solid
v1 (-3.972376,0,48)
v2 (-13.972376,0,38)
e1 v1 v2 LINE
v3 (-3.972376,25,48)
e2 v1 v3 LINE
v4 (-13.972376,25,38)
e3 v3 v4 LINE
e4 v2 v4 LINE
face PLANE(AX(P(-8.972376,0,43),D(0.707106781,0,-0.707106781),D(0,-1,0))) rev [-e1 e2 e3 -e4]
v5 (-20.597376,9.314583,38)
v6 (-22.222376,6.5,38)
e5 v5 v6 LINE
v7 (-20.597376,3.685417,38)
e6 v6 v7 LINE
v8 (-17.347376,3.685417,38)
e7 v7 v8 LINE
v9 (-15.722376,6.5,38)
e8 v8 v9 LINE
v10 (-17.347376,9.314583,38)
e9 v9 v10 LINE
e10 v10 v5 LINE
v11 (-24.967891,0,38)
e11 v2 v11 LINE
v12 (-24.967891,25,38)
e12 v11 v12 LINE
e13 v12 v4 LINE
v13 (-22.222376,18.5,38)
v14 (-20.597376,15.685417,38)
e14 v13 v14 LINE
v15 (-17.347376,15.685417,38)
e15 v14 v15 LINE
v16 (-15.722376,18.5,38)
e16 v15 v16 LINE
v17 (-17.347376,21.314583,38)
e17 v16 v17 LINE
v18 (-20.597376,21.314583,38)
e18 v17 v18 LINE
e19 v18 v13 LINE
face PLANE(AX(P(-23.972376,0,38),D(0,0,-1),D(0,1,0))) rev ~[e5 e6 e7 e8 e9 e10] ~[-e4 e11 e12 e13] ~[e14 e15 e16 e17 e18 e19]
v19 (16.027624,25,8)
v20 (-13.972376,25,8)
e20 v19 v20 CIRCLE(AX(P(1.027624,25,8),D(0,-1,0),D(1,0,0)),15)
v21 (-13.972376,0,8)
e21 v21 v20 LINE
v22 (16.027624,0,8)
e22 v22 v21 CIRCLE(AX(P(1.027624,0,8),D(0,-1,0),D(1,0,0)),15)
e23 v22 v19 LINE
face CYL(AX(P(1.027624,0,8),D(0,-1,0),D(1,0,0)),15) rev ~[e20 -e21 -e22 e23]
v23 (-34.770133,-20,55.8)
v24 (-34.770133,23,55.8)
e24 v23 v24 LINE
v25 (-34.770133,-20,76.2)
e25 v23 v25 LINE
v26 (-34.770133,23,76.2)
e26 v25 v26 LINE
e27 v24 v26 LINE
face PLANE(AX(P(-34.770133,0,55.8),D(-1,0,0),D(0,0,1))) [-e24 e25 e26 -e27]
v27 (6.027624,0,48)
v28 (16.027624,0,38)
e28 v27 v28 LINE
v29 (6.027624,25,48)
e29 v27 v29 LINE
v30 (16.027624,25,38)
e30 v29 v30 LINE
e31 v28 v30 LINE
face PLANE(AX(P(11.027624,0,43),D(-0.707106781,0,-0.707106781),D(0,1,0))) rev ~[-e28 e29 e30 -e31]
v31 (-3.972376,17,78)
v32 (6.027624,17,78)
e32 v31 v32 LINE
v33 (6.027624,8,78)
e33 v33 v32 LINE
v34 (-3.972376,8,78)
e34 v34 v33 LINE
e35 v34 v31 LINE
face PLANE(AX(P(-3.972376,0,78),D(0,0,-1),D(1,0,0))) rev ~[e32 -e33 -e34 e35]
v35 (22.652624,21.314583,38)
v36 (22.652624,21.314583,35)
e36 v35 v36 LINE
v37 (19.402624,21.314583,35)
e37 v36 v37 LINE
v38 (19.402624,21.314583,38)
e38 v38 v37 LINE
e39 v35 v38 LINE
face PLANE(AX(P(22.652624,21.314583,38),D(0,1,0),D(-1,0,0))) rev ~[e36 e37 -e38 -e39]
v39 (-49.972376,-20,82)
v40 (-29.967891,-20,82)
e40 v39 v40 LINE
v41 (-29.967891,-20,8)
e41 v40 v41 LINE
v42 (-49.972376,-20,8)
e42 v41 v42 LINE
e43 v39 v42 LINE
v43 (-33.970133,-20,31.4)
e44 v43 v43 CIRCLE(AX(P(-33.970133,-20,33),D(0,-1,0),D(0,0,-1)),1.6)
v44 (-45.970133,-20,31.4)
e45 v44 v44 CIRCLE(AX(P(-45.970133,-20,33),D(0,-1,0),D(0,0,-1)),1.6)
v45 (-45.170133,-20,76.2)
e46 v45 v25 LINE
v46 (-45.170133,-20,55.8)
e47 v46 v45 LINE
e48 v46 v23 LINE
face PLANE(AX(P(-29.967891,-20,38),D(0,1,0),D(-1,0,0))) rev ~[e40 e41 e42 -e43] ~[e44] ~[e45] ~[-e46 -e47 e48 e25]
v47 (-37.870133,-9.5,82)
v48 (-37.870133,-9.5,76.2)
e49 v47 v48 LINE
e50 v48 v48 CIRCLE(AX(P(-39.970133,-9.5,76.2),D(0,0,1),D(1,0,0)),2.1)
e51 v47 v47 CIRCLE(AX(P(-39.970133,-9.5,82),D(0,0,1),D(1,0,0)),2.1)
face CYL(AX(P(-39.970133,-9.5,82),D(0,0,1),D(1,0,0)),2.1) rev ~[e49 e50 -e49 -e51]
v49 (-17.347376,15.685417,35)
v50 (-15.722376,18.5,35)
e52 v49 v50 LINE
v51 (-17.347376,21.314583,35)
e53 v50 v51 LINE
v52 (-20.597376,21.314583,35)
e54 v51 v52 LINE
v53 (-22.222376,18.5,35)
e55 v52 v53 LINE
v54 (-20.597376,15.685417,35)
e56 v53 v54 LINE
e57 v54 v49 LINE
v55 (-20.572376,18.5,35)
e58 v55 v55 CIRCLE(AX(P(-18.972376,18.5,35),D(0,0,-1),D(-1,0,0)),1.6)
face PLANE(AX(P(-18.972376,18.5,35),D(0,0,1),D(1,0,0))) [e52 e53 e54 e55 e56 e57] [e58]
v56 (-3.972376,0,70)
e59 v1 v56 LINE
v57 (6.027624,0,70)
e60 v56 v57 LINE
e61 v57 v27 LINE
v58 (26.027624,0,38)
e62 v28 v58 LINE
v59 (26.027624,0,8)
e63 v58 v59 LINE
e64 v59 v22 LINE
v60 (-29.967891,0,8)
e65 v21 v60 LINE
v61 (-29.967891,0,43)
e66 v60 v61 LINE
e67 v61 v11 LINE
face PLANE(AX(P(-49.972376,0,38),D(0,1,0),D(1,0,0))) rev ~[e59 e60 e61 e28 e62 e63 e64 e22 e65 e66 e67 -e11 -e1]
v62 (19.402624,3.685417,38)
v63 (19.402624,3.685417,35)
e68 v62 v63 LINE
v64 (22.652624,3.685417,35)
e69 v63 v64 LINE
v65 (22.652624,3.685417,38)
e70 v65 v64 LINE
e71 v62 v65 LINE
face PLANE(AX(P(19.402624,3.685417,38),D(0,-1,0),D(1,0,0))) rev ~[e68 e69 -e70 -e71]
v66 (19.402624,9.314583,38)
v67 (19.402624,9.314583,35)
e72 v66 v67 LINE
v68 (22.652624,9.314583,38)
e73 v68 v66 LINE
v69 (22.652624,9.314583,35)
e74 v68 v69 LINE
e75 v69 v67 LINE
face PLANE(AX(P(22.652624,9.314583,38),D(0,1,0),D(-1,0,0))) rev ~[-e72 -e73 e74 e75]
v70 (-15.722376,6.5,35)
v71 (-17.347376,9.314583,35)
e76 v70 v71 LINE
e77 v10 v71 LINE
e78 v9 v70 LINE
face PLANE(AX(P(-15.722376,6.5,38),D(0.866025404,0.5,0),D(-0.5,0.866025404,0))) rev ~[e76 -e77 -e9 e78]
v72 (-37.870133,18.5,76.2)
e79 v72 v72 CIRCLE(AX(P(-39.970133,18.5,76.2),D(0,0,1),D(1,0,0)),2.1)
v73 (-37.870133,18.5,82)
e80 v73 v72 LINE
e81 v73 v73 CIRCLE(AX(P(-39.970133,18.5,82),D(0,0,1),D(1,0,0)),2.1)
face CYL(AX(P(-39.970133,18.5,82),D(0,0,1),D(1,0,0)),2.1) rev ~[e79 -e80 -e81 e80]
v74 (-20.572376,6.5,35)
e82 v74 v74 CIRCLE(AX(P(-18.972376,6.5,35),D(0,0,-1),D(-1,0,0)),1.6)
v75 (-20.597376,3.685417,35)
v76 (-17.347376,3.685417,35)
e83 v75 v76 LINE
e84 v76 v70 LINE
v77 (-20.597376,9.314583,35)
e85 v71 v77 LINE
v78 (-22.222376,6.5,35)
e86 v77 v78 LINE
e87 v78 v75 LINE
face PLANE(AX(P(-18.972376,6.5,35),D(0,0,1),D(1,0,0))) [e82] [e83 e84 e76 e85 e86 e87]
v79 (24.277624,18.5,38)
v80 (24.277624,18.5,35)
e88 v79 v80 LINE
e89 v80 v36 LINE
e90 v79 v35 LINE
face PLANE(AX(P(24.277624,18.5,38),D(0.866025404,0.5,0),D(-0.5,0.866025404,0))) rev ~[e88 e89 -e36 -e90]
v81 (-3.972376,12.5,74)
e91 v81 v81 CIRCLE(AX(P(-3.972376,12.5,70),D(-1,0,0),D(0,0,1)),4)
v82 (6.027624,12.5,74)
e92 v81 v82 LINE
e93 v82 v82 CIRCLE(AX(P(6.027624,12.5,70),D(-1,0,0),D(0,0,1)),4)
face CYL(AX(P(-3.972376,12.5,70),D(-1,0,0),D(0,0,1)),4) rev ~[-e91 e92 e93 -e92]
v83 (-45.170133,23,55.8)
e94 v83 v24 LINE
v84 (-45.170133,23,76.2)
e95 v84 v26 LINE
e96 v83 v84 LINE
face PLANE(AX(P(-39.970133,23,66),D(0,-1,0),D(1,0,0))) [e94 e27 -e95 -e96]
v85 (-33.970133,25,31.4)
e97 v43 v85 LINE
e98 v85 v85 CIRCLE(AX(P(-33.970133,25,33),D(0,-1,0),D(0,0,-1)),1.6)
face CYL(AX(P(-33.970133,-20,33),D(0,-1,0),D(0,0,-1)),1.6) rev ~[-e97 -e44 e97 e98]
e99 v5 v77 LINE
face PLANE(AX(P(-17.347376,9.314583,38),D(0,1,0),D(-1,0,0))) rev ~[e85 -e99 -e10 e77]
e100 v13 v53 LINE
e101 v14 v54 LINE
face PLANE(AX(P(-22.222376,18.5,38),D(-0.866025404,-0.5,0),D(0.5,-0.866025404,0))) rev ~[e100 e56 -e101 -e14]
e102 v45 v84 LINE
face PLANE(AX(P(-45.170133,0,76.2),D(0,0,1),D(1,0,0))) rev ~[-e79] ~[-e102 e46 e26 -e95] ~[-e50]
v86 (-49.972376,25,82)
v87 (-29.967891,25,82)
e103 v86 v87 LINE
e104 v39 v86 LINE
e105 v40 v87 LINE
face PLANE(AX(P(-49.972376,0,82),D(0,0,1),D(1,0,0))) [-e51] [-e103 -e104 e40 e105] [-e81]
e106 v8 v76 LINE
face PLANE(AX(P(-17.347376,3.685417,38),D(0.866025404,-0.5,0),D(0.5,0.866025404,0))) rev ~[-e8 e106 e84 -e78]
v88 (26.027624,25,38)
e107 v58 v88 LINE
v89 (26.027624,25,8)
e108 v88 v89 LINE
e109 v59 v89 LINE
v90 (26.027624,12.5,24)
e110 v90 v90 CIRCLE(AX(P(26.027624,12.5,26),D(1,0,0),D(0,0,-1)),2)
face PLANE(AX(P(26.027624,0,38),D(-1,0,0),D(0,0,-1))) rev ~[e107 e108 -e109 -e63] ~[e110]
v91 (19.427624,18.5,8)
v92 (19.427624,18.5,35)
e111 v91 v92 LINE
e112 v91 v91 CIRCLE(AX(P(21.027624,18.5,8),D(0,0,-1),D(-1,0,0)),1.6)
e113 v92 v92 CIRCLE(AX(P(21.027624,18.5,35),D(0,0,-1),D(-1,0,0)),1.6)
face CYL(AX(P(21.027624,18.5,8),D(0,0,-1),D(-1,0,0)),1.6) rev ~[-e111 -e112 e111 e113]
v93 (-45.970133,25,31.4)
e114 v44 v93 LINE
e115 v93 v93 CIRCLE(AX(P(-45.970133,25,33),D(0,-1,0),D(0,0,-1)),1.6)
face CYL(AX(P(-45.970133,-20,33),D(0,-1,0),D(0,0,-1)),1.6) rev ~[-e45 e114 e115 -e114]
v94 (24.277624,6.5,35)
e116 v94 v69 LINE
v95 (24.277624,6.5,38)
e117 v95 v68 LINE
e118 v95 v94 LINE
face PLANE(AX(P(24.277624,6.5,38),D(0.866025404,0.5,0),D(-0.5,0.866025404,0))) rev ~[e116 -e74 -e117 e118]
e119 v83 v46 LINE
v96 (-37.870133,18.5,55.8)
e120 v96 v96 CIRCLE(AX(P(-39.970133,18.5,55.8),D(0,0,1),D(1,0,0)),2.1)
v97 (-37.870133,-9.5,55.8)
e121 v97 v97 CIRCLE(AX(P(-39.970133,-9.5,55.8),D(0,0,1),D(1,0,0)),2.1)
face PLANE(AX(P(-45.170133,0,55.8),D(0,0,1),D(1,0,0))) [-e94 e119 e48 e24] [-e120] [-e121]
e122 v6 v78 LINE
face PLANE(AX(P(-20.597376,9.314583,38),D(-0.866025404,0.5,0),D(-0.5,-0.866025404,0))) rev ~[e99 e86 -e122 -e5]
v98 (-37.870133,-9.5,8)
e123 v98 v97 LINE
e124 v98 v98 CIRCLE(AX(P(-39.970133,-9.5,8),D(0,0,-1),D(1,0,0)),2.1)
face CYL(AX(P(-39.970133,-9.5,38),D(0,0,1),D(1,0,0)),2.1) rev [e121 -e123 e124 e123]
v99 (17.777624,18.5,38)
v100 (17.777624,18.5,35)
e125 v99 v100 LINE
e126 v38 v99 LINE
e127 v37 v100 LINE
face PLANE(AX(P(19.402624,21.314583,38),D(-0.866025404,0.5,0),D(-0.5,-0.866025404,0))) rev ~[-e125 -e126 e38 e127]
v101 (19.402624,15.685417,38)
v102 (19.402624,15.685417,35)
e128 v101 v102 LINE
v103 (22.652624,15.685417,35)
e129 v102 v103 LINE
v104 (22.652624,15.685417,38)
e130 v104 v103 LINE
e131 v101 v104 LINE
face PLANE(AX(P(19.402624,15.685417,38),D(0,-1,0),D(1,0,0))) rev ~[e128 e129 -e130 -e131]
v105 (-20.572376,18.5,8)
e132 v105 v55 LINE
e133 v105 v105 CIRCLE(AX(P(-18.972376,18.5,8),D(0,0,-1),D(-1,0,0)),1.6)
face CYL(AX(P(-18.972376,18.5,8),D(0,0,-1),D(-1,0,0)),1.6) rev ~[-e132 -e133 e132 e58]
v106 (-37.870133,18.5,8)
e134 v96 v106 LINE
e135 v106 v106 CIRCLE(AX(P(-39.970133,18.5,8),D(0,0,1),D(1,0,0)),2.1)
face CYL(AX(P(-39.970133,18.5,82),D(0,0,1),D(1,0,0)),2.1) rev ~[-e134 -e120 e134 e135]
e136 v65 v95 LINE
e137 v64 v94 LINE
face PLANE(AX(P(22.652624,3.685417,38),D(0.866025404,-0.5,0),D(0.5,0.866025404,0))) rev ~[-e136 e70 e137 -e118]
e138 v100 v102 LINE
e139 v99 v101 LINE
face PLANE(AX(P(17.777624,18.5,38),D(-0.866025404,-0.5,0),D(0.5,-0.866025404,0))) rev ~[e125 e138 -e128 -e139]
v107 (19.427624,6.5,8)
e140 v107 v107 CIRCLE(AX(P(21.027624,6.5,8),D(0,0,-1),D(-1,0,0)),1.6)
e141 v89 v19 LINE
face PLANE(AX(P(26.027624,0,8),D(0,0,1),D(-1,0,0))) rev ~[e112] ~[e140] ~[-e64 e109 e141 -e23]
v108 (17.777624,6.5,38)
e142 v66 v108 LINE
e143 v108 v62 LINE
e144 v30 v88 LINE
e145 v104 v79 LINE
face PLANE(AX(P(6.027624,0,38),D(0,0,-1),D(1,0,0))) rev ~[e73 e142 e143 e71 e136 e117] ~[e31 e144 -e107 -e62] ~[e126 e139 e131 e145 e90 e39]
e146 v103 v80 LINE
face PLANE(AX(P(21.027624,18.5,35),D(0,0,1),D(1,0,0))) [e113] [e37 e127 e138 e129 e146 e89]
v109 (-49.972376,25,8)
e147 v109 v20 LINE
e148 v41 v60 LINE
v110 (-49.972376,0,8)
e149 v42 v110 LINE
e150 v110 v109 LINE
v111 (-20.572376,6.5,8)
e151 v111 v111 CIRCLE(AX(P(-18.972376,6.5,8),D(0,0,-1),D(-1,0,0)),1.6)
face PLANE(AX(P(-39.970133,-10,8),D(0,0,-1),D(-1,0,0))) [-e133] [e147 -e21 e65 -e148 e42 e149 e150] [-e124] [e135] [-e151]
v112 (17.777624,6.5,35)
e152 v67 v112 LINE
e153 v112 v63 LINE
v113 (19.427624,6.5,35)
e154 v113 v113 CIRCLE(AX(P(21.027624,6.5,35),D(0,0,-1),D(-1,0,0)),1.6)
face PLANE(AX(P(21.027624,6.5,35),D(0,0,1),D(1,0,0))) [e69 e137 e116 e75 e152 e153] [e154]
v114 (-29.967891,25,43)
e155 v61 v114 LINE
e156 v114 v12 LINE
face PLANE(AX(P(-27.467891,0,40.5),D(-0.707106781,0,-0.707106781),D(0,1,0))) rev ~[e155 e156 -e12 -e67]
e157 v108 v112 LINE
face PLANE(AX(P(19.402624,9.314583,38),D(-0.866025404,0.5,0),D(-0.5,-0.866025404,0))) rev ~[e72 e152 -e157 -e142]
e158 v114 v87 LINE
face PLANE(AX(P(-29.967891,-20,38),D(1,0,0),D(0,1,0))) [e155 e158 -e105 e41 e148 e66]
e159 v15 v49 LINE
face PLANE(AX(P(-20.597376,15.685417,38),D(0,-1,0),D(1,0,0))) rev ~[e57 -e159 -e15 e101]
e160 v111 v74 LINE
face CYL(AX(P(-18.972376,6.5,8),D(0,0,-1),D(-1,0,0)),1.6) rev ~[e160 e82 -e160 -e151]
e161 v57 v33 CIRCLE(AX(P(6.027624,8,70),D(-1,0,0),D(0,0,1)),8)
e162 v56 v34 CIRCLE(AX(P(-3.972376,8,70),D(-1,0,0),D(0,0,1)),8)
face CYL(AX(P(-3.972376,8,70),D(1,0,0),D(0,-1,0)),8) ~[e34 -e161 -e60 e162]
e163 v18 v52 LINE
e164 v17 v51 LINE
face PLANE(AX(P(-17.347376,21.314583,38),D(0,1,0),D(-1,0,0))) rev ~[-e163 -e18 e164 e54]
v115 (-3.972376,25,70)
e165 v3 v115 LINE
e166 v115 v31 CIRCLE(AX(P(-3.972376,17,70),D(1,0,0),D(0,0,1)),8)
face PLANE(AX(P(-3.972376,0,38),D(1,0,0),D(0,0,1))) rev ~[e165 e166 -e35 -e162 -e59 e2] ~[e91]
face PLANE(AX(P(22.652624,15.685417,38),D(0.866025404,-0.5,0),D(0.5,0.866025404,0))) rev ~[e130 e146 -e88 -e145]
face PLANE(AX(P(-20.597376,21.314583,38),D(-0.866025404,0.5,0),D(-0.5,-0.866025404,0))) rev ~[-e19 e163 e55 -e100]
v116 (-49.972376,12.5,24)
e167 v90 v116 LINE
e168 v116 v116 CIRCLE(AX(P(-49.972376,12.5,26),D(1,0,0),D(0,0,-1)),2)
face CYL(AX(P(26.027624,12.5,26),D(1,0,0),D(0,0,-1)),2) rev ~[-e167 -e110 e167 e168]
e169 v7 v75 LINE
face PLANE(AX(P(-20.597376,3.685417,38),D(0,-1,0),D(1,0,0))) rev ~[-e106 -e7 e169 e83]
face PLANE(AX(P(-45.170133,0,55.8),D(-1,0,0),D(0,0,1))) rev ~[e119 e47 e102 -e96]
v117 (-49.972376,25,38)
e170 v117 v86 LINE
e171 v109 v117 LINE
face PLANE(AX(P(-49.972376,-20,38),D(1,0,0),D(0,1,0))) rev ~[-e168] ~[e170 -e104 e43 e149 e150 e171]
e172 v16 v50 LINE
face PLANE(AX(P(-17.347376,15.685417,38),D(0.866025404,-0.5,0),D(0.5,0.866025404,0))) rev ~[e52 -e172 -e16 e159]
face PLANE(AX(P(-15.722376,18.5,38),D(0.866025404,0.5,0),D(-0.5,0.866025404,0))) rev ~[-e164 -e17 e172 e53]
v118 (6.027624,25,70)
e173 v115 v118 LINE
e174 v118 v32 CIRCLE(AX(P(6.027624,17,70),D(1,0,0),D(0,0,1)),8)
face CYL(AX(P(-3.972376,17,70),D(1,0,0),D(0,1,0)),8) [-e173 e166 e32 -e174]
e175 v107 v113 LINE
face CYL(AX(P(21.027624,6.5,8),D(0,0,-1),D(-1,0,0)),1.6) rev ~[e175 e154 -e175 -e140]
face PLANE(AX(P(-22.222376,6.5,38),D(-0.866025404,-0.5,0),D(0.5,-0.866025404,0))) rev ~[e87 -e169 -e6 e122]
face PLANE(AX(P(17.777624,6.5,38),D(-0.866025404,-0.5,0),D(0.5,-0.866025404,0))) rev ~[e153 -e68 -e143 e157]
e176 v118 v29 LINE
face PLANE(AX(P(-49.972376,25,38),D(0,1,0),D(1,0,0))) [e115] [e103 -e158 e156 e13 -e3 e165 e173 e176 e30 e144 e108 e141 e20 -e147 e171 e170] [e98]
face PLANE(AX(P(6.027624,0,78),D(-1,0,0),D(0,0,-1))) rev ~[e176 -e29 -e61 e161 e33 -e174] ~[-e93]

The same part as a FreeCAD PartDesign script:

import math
import FreeCAD as App
import Part
import Sketcher

V = App.Vector
Q = App.Units.Quantity


def edges_at(feature, points):
    """Names of the edges that pass closest to the given points."""
    edges = feature.Shape.Edges
    near = lambda p: min(range(len(edges)), key=lambda i: edges[i].distToShape(Part.Vertex(*p))[0])
    return sorted({f"Edge{near(p) + 1}" for p in points})

doc = App.newDocument("Part")
body = doc.addObject("PartDesign::Body", "Body")

sketch1 = body.newObject("Sketcher::SketchObject", "Sketch")
sketch1.AttachmentSupport = (doc.getObject("XZ_Plane"), [""])
sketch1.MapMode = "FlatFace"
sketch1.addGeometry([
    Part.LineSegment(V(-13.972376, 8, 0), V(-23.972376, 8, 0)),
    Part.LineSegment(V(-23.972376, 8, 0), V(-23.972376, 38, 0)),
    Part.LineSegment(V(-23.972376, 38, 0), V(-3.972376, 38, 0)),
    Part.LineSegment(V(-3.972376, 38, 0), V(-3.972376, 78, 0)),
    Part.LineSegment(V(-3.972376, 78, 0), V(6.027624, 78, 0)),
    Part.LineSegment(V(6.027624, 78, 0), V(6.027624, 38, 0)),
    Part.LineSegment(V(6.027624, 38, 0), V(26.027624, 38, 0)),
    Part.LineSegment(V(26.027624, 38, 0), V(26.027624, 8, 0)),
    Part.LineSegment(V(26.027624, 8, 0), V(16.027624, 8, 0)),
    Part.ArcOfCircle(Part.Circle(V(1.027624, 8, 0), V(0, 0, 1), 15), math.radians(0), math.radians(180)),
], False)
sketch1.addConstraint([
    Sketcher.Constraint("Coincident", 0, 2, 1, 1),
    Sketcher.Constraint("Coincident", 1, 2, 2, 1),
    Sketcher.Constraint("Coincident", 2, 2, 3, 1),
    Sketcher.Constraint("Coincident", 3, 2, 4, 1),
    Sketcher.Constraint("Coincident", 4, 2, 5, 1),
    Sketcher.Constraint("Coincident", 5, 2, 6, 1),
    Sketcher.Constraint("Coincident", 6, 2, 7, 1),
    Sketcher.Constraint("Coincident", 7, 2, 8, 1),
    Sketcher.Constraint("Coincident", 8, 2, 9, 1),
    Sketcher.Constraint("Coincident", 9, 2, 0, 1),
    Sketcher.Constraint("Horizontal", 0),
    Sketcher.Constraint("Vertical", 1),
    Sketcher.Constraint("Horizontal", 2),
    Sketcher.Constraint("Vertical", 3),
    Sketcher.Constraint("Horizontal", 4),
    Sketcher.Constraint("Vertical", 5),
    Sketcher.Constraint("Horizontal", 6),
    Sketcher.Constraint("Vertical", 7),
    Sketcher.Constraint("Horizontal", 8),
    Sketcher.Constraint("Horizontal", 9, 3, 0, 2),
    Sketcher.Constraint("Horizontal", 2, 2, 5, 2),
    Sketcher.Constraint("Horizontal", 0, 2, 7, 2),
    Sketcher.Constraint("Equal", 0, 4),
    Sketcher.Constraint("Equal", 2, 6),
    Sketcher.Constraint("Equal", 4, 8),
    Sketcher.Constraint("Radius", 9, 15.0),
    Sketcher.Constraint("DistanceX", 0, 2, 0, 1, 10.0),
    Sketcher.Constraint("DistanceY", 1, 1, 1, 2, 30.0),
    Sketcher.Constraint("DistanceY", 3, 1, 3, 2, 40.0),
    Sketcher.Constraint("DistanceY", -1, 1, 9, 3, 8.0),
    Sketcher.Constraint("DistanceX", -1, 1, 9, 3, 1.027624),
])
pad1 = body.newObject("PartDesign::Pad", "Pad")
pad1.Profile = sketch1
pad1.Length = 25
pad1.Reversed = True

sketch2 = body.newObject("Sketcher::SketchObject", "Sketch001")
sketch2.AttachmentSupport = (doc.getObject("YZ_Plane"), [""])
sketch2.MapMode = "FlatFace"
sketch2.AttachmentOffset = App.Placement(V(0, 0, -3.972376), App.Rotation())
sketch2.addGeometry(Part.Circle(V(12.5, 70, 0), V(0, 0, 1), 4), False)
sketch2.addConstraint([
    Sketcher.Constraint("Diameter", 0, 8.0),
    Sketcher.Constraint("DistanceY", -1, 1, 0, 3, 70.0),
    Sketcher.Constraint("DistanceX", -1, 1, 0, 3, 12.5),
])
pocket1 = body.newObject("PartDesign::Pocket", "Pocket")
pocket1.Profile = sketch2
pocket1.Type = "ThroughAll"
pocket1.Reversed = True

sketch3 = body.newObject("Sketcher::SketchObject", "Sketch002")
sketch3.AttachmentSupport = (doc.getObject("XY_Plane"), [""])
sketch3.MapMode = "FlatFace"
sketch3.AttachmentOffset = App.Placement(V(0, 0, 8), App.Rotation())
sketch3.addGeometry([
    Part.Circle(V(21.027624, 6.5, 0), V(0, 0, 1), 1.6),
    Part.Circle(V(21.027624, 18.5, 0), V(0, 0, 1), 1.6),
    Part.Circle(V(-18.972376, 6.5, 0), V(0, 0, 1), 1.6),
    Part.Circle(V(-18.972376, 18.5, 0), V(0, 0, 1), 1.6),
], False)
sketch3.addConstraint([
    Sketcher.Constraint("Equal", 0, 1),
    Sketcher.Constraint("Equal", 1, 2),
    Sketcher.Constraint("Equal", 2, 3),
    Sketcher.Constraint("Horizontal", 0, 3, 2, 3),
    Sketcher.Constraint("Horizontal", 1, 3, 3, 3),
    Sketcher.Constraint("Vertical", 0, 3, 1, 3),
    Sketcher.Constraint("Vertical", 2, 3, 3, 3),
    Sketcher.Constraint("Diameter", 0, 3.2),
    Sketcher.Constraint("DistanceY", 0, 3, 1, 3, 12.0),
    Sketcher.Constraint("DistanceX", 2, 3, 0, 3, 40.0),
    Sketcher.Constraint("DistanceY", -1, 1, 0, 3, 6.5),
    Sketcher.Constraint("DistanceX", -1, 1, 0, 3, 21.027624),
])
pocket2 = body.newObject("PartDesign::Pocket", "Pocket001")
pocket2.Profile = sketch3
pocket2.Type = "ThroughAll"
pocket2.Reversed = True

sketch4 = body.newObject("Sketcher::SketchObject", "Sketch003")
sketch4.AttachmentSupport = (doc.getObject("XY_Plane"), [""])
sketch4.MapMode = "FlatFace"
sketch4.AttachmentOffset = App.Placement(V(0, 0, 38), App.Rotation())
sketch4.addGeometry([
    Part.LineSegment(V(24.277624, 18.5, 0), V(22.652624, 21.314583, 0)),
    Part.LineSegment(V(22.652624, 21.314583, 0), V(19.402624, 21.314583, 0)),
    Part.LineSegment(V(19.402624, 21.314583, 0), V(17.777624, 18.5, 0)),
    Part.LineSegment(V(17.777624, 18.5, 0), V(19.402624, 15.685417, 0)),
    Part.LineSegment(V(19.402624, 15.685417, 0), V(22.652624, 15.685417, 0)),
    Part.LineSegment(V(22.652624, 15.685417, 0), V(24.277624, 18.5, 0)),
    Part.LineSegment(V(24.277624, 6.5, 0), V(22.652624, 9.314583, 0)),
    Part.LineSegment(V(22.652624, 9.314583, 0), V(19.402624, 9.314583, 0)),
    Part.LineSegment(V(19.402624, 9.314583, 0), V(17.777624, 6.5, 0)),
    Part.LineSegment(V(17.777624, 6.5, 0), V(19.402624, 3.685417, 0)),
    Part.LineSegment(V(19.402624, 3.685417, 0), V(22.652624, 3.685417, 0)),
    Part.LineSegment(V(22.652624, 3.685417, 0), V(24.277624, 6.5, 0)),
    Part.LineSegment(V(-15.722376, 18.5, 0), V(-17.347376, 21.314583, 0)),
    Part.LineSegment(V(-17.347376, 21.314583, 0), V(-20.597376, 21.314583, 0)),
    Part.LineSegment(V(-20.597376, 21.314583, 0), V(-22.222376, 18.5, 0)),
    Part.LineSegment(V(-22.222376, 18.5, 0), V(-20.597376, 15.685417, 0)),
    Part.LineSegment(V(-20.597376, 15.685417, 0), V(-17.347376, 15.685417, 0)),
    Part.LineSegment(V(-17.347376, 15.685417, 0), V(-15.722376, 18.5, 0)),
    Part.LineSegment(V(-15.722376, 6.5, 0), V(-17.347376, 9.314583, 0)),
    Part.LineSegment(V(-17.347376, 9.314583, 0), V(-20.597376, 9.314583, 0)),
    Part.LineSegment(V(-20.597376, 9.314583, 0), V(-22.222376, 6.5, 0)),
    Part.LineSegment(V(-22.222376, 6.5, 0), V(-20.597376, 3.685417, 0)),
    Part.LineSegment(V(-20.597376, 3.685417, 0), V(-17.347376, 3.685417, 0)),
    Part.LineSegment(V(-17.347376, 3.685417, 0), V(-15.722376, 6.5, 0)),
], False)
sketch4.addConstraint([
    Sketcher.Constraint("Coincident", 0, 2, 1, 1),
    Sketcher.Constraint("Coincident", 1, 2, 2, 1),
    Sketcher.Constraint("Coincident", 2, 2, 3, 1),
    Sketcher.Constraint("Coincident", 3, 2, 4, 1),
    Sketcher.Constraint("Coincident", 4, 2, 5, 1),
    Sketcher.Constraint("Coincident", 5, 2, 0, 1),
    Sketcher.Constraint("Coincident", 6, 2, 7, 1),
    Sketcher.Constraint("Coincident", 7, 2, 8, 1),
    Sketcher.Constraint("Coincident", 8, 2, 9, 1),
    Sketcher.Constraint("Coincident", 9, 2, 10, 1),
    Sketcher.Constraint("Coincident", 10, 2, 11, 1),
    Sketcher.Constraint("Coincident", 11, 2, 6, 1),
    Sketcher.Constraint("Coincident", 12, 2, 13, 1),
    Sketcher.Constraint("Coincident", 13, 2, 14, 1),
    Sketcher.Constraint("Coincident", 14, 2, 15, 1),
    Sketcher.Constraint("Coincident", 15, 2, 16, 1),
    Sketcher.Constraint("Coincident", 16, 2, 17, 1),
    Sketcher.Constraint("Coincident", 17, 2, 12, 1),
    Sketcher.Constraint("Coincident", 18, 2, 19, 1),
    Sketcher.Constraint("Coincident", 19, 2, 20, 1),
    Sketcher.Constraint("Coincident", 20, 2, 21, 1),
    Sketcher.Constraint("Coincident", 21, 2, 22, 1),
    Sketcher.Constraint("Coincident", 22, 2, 23, 1),
    Sketcher.Constraint("Coincident", 23, 2, 18, 1),
    Sketcher.Constraint("Horizontal", 1),
    Sketcher.Constraint("Horizontal", 4),
    Sketcher.Constraint("Horizontal", 7),
    Sketcher.Constraint("Horizontal", 10),
    Sketcher.Constraint("Horizontal", 13),
    Sketcher.Constraint("Horizontal", 16),
    Sketcher.Constraint("Horizontal", 19),
    Sketcher.Constraint("Horizontal", 22),
    Sketcher.Constraint("Parallel", 0, 3),
    Sketcher.Constraint("Parallel", 2, 5),
    Sketcher.Constraint("Parallel", 3, 6),
    Sketcher.Constraint("Parallel", 5, 8),
    Sketcher.Constraint("Parallel", 6, 9),
    Sketcher.Constraint("Parallel", 8, 11),
    Sketcher.Constraint("Parallel", 9, 12),
    Sketcher.Constraint("Parallel", 11, 14),
    Sketcher.Constraint("Parallel", 12, 15),
    Sketcher.Constraint("Parallel", 14, 17),
    Sketcher.Constraint("Parallel", 15, 18),
    Sketcher.Constraint("Parallel", 17, 20),
    Sketcher.Constraint("Parallel", 18, 21),
    Sketcher.Constraint("Parallel", 20, 23),
    Sketcher.Constraint("Horizontal", 2, 2, 5, 2),
    Sketcher.Constraint("Horizontal", 8, 2, 11, 2),
    Sketcher.Constraint("Horizontal", 1, 2, 12, 2),
    Sketcher.Constraint("Horizontal", 5, 2, 14, 2),
    Sketcher.Constraint("Horizontal", 4, 2, 15, 2),
    Sketcher.Constraint("Horizontal", 14, 2, 17, 2),
    Sketcher.Constraint("Horizontal", 7, 2, 18, 2),
    Sketcher.Constraint("Horizontal", 11, 2, 20, 2),
    Sketcher.Constraint("Horizontal", 10, 2, 21, 2),
    Sketcher.Constraint("Horizontal", 20, 2, 23, 2),
    Sketcher.Constraint("Vertical", 1, 2, 3, 2),
    Sketcher.Constraint("Vertical", 0, 2, 4, 2),
    Sketcher.Constraint("Vertical", 4, 2, 6, 2),
    Sketcher.Constraint("Vertical", 3, 2, 7, 2),
    Sketcher.Constraint("Vertical", 2, 2, 8, 2),
    Sketcher.Constraint("Vertical", 7, 2, 9, 2),
    Sketcher.Constraint("Vertical", 16, 2, 18, 2),
    Sketcher.Constraint("Vertical", 15, 2, 19, 2),
    Sketcher.Constraint("Equal", 10, 13),
    Sketcher.Constraint("Angle", 0, Q("120 deg")),
    Sketcher.Constraint("DistanceY", 6, 2, 0, 2, 12.0),
    Sketcher.Constraint("DistanceX", 13, 2, 1, 2, 40.0),
    Sketcher.Constraint("DistanceX", 1, 2, 1, 1, 3.25),
    Sketcher.Constraint("DistanceY", -1, 1, 2, 2, 18.5),
    Sketcher.Constraint("DistanceX", 2, 2, 5, 2, 6.5),
    Sketcher.Constraint("DistanceX", -1, 1, 0, 2, 22.652624),
])
pocket3 = body.newObject("PartDesign::Pocket", "Pocket002")
pocket3.Profile = sketch4
pocket3.Length = 3
doc.recompute()

fillet = body.newObject("PartDesign::Fillet", "Fillet")
fillet.Base = (pocket3, edges_at(pocket3, [(1.028, 0, 78), (1.028, 25, 78)]))
fillet.Radius = 8
doc.recompute()

chamfer = body.newObject("PartDesign::Chamfer", "Chamfer")
chamfer.Base = (fillet, edges_at(fillet, [(6.028, 12.5, 38), (-3.972, 12.5, 38)]))
chamfer.Size = 10

sketch5 = body.newObject("Sketcher::SketchObject", "Sketch004")
sketch5.AttachmentSupport = (doc.getObject("YZ_Plane"), [""])
sketch5.MapMode = "FlatFace"
sketch5.AttachmentOffset = App.Placement(V(0, 0, -23.972376), App.Rotation())
sketch5.addGeometry([
    Part.LineSegment(V(25, 8, 0), V(0, 8, 0)),
    Part.LineSegment(V(0, 8, 0), V(0, 38, 0)),
    Part.LineSegment(V(0, 38, 0), V(25, 38, 0)),
    Part.LineSegment(V(25, 38, 0), V(25, 8, 0)),
], False)
sketch5.addConstraint([
    Sketcher.Constraint("Coincident", 0, 2, 1, 1),
    Sketcher.Constraint("Coincident", 1, 2, 2, 1),
    Sketcher.Constraint("Coincident", 2, 2, 3, 1),
    Sketcher.Constraint("Coincident", 3, 2, 0, 1),
    Sketcher.Constraint("Horizontal", 0),
    Sketcher.Constraint("Vertical", 1),
    Sketcher.Constraint("Horizontal", 2),
    Sketcher.Constraint("Vertical", 3),
    Sketcher.Constraint("PointOnObject", 0, 2, -2),
    Sketcher.Constraint("DistanceX", 0, 2, 0, 1, 25.0),
    Sketcher.Constraint("DistanceY", 1, 1, 1, 2, 30.0),
    Sketcher.Constraint("DistanceY", -1, 1, 0, 2, 8.0),
])
pad2 = body.newObject("PartDesign::Pad", "Pad001")
pad2.Profile = sketch5
pad2.Length = 26
pad2.Reversed = True

sketch6 = body.newObject("Sketcher::SketchObject", "Sketch005")
sketch6.AttachmentSupport = (doc.getObject("XY_Plane"), [""])
sketch6.MapMode = "FlatFace"
sketch6.AttachmentOffset = App.Placement(V(0, 0, 38), App.Rotation())
sketch6.addGeometry([
    Part.LineSegment(V(-49.972376, 25, 0), V(-49.972376, 0, 0)),
    Part.LineSegment(V(-49.972376, 0, 0), V(-29.967891, 0, 0)),
    Part.LineSegment(V(-29.967891, 0, 0), V(-29.967891, 25, 0)),
    Part.LineSegment(V(-29.967891, 25, 0), V(-49.972376, 25, 0)),
], False)
sketch6.addConstraint([
    Sketcher.Constraint("Coincident", 0, 2, 1, 1),
    Sketcher.Constraint("Coincident", 1, 2, 2, 1),
    Sketcher.Constraint("Coincident", 2, 2, 3, 1),
    Sketcher.Constraint("Coincident", 3, 2, 0, 1),
    Sketcher.Constraint("Vertical", 0),
    Sketcher.Constraint("Horizontal", 1),
    Sketcher.Constraint("Vertical", 2),
    Sketcher.Constraint("Horizontal", 3),
    Sketcher.Constraint("PointOnObject", 0, 2, -1),
    Sketcher.Constraint("DistanceY", 0, 2, 0, 1, 25.0),
    Sketcher.Constraint("DistanceX", 1, 1, 1, 2, 20.004484),
    Sketcher.Constraint("DistanceX", 1, 2, -1, 1, 29.967891),
])
pad3 = body.newObject("PartDesign::Pad", "Pad002")
pad3.Profile = sketch6
pad3.Length = 44

sketch7 = body.newObject("Sketcher::SketchObject", "Sketch006")
sketch7.AttachmentSupport = (doc.getObject("XZ_Plane"), [""])
sketch7.MapMode = "FlatFace"
sketch7.addGeometry([
    Part.LineSegment(V(-45.170133, 76.2, 0), V(-45.170133, 55.8, 0)),
    Part.LineSegment(V(-45.170133, 55.8, 0), V(-34.770133, 55.8, 0)),
    Part.LineSegment(V(-34.770133, 55.8, 0), V(-34.770133, 76.2, 0)),
    Part.LineSegment(V(-34.770133, 76.2, 0), V(-45.170133, 76.2, 0)),
], False)
sketch7.addConstraint([
    Sketcher.Constraint("Coincident", 0, 2, 1, 1),
    Sketcher.Constraint("Coincident", 1, 2, 2, 1),
    Sketcher.Constraint("Coincident", 2, 2, 3, 1),
    Sketcher.Constraint("Coincident", 3, 2, 0, 1),
    Sketcher.Constraint("Vertical", 0),
    Sketcher.Constraint("Horizontal", 1),
    Sketcher.Constraint("Vertical", 2),
    Sketcher.Constraint("Horizontal", 3),
    Sketcher.Constraint("DistanceX", 1, 1, 1, 2, 10.4),
    Sketcher.Constraint("DistanceY", 0, 2, 0, 1, 20.4),
    Sketcher.Constraint("DistanceY", -1, 1, 0, 2, 55.8),
    Sketcher.Constraint("DistanceX", 0, 2, -1, 1, 45.170133),
])
pocket4 = body.newObject("PartDesign::Pocket", "Pocket003")
pocket4.Profile = sketch7
pocket4.Length = 23

sketch8 = body.newObject("Sketcher::SketchObject", "Sketch007")
sketch8.AttachmentSupport = (doc.getObject("XZ_Plane"), [""])
sketch8.MapMode = "FlatFace"
sketch8.addGeometry([
    Part.LineSegment(V(-49.972376, 82, 0), V(-49.972376, 38, 0)),
    Part.LineSegment(V(-49.972376, 38, 0), V(-29.967891, 38, 0)),
    Part.LineSegment(V(-29.967891, 38, 0), V(-29.967891, 82, 0)),
    Part.LineSegment(V(-29.967891, 82, 0), V(-49.972376, 82, 0)),
    Part.LineSegment(V(-34.770133, 55.8, 0), V(-45.170133, 55.8, 0)),
    Part.LineSegment(V(-45.170133, 55.8, 0), V(-45.170133, 76.2, 0)),
    Part.LineSegment(V(-45.170133, 76.2, 0), V(-34.770133, 76.2, 0)),
    Part.LineSegment(V(-34.770133, 76.2, 0), V(-34.770133, 55.8, 0)),
], False)
sketch8.addConstraint([
    Sketcher.Constraint("Coincident", 0, 2, 1, 1),
    Sketcher.Constraint("Coincident", 1, 2, 2, 1),
    Sketcher.Constraint("Coincident", 2, 2, 3, 1),
    Sketcher.Constraint("Coincident", 3, 2, 0, 1),
    Sketcher.Constraint("Coincident", 4, 2, 5, 1),
    Sketcher.Constraint("Coincident", 5, 2, 6, 1),
    Sketcher.Constraint("Coincident", 6, 2, 7, 1),
    Sketcher.Constraint("Coincident", 7, 2, 4, 1),
    Sketcher.Constraint("Vertical", 0),
    Sketcher.Constraint("Horizontal", 1),
    Sketcher.Constraint("Vertical", 2),
    Sketcher.Constraint("Horizontal", 3),
    Sketcher.Constraint("Horizontal", 4),
    Sketcher.Constraint("Vertical", 5),
    Sketcher.Constraint("Horizontal", 6),
    Sketcher.Constraint("Vertical", 7),
    Sketcher.Constraint("DistanceY", 0, 2, 0, 1, 44.0),
    Sketcher.Constraint("DistanceX", 4, 2, 4, 1, 10.4),
    Sketcher.Constraint("DistanceY", 5, 1, 5, 2, 20.4),
    Sketcher.Constraint("DistanceY", -1, 1, 0, 2, 38.0),
    Sketcher.Constraint("DistanceY", -1, 1, 4, 2, 55.8),
    Sketcher.Constraint("DistanceX", 1, 1, 1, 2, 20.004484),
    Sketcher.Constraint("DistanceX", 1, 2, -1, 1, 29.967891),
    Sketcher.Constraint("DistanceX", 4, 2, -1, 1, 45.170133),
])
pad4 = body.newObject("PartDesign::Pad", "Pad003")
pad4.Profile = sketch8
pad4.Length = 20

sketch9 = body.newObject("Sketcher::SketchObject", "Sketch008")
sketch9.AttachmentSupport = (doc.getObject("XY_Plane"), [""])
sketch9.MapMode = "FlatFace"
sketch9.AttachmentOffset = App.Placement(V(0, 0, 82), App.Rotation())
sketch9.addGeometry([
    Part.Circle(V(-39.970133, -9.5, 0), V(0, 0, 1), 2.1),
    Part.Circle(V(-39.970133, 18.5, 0), V(0, 0, 1), 2.1),
], False)
sketch9.addConstraint([
    Sketcher.Constraint("Equal", 0, 1),
    Sketcher.Constraint("Vertical", 0, 3, 1, 3),
    Sketcher.Constraint("Diameter", 0, 4.2),
    Sketcher.Constraint("DistanceY", 0, 3, 1, 3, 28.0),
    Sketcher.Constraint("DistanceY", 0, 3, -1, 1, 9.5),
    Sketcher.Constraint("DistanceX", 0, 3, -1, 1, 39.970133),
])
pocket5 = body.newObject("PartDesign::Pocket", "Pocket004")
pocket5.Profile = sketch9
pocket5.Type = "ThroughAll"
doc.recompute()

chamfer2 = body.newObject("PartDesign::Chamfer", "Chamfer001")
chamfer2.Base = (pocket5, edges_at(pocket5, [(-29.968, 12.5, 38)]))
chamfer2.Size = 5

sketch10 = body.newObject("Sketcher::SketchObject", "Sketch009")
sketch10.AttachmentSupport = (doc.getObject("YZ_Plane"), [""])
sketch10.MapMode = "FlatFace"
sketch10.AttachmentOffset = App.Placement(V(0, 0, 26.027624), App.Rotation())
sketch10.addGeometry(Part.Circle(V(12.5, 26, 0), V(0, 0, 1), 2), False)
sketch10.addConstraint([
    Sketcher.Constraint("Diameter", 0, 4.0),
    Sketcher.Constraint("DistanceY", -1, 1, 0, 3, 26.0),
    Sketcher.Constraint("DistanceX", -1, 1, 0, 3, 12.5),
])
pocket6 = body.newObject("PartDesign::Pocket", "Pocket005")
pocket6.Profile = sketch10
pocket6.Type = "ThroughAll"

sketch11 = body.newObject("Sketcher::SketchObject", "Sketch010")
sketch11.AttachmentSupport = (doc.getObject("XY_Plane"), [""])
sketch11.MapMode = "FlatFace"
sketch11.AttachmentOffset = App.Placement(V(0, 0, 38), App.Rotation())
sketch11.addGeometry([
    Part.LineSegment(V(-29.967891, 0, 0), V(-29.967891, -20, 0)),
    Part.LineSegment(V(-29.967891, -20, 0), V(-49.972376, -20, 0)),
    Part.LineSegment(V(-49.972376, -20, 0), V(-49.972376, 0, 0)),
    Part.LineSegment(V(-49.972376, 0, 0), V(-29.967891, 0, 0)),
    Part.Circle(V(-39.970133, -9.5, 0), V(0, 0, 1), 2.1),
], False)
sketch11.addConstraint([
    Sketcher.Constraint("Coincident", 0, 2, 1, 1),
    Sketcher.Constraint("Coincident", 1, 2, 2, 1),
    Sketcher.Constraint("Coincident", 2, 2, 3, 1),
    Sketcher.Constraint("Coincident", 3, 2, 0, 1),
    Sketcher.Constraint("Vertical", 0),
    Sketcher.Constraint("Horizontal", 1),
    Sketcher.Constraint("Vertical", 2),
    Sketcher.Constraint("Horizontal", 3),
    Sketcher.Constraint("PointOnObject", 2, 2, -1),
    Sketcher.Constraint("Diameter", 4, 4.2),
    Sketcher.Constraint("DistanceY", 0, 2, 0, 1, 20.0),
    Sketcher.Constraint("DistanceY", 4, 3, -1, 1, 9.5),
    Sketcher.Constraint("DistanceX", 1, 2, 1, 1, 20.004484),
    Sketcher.Constraint("DistanceX", 0, 2, -1, 1, 29.967891),
    Sketcher.Constraint("DistanceX", 4, 3, -1, 1, 39.970133),
])
pad5 = body.newObject("PartDesign::Pad", "Pad004")
pad5.Profile = sketch11
pad5.Length = 30
pad5.Reversed = True

sketch12 = body.newObject("Sketcher::SketchObject", "Sketch011")
sketch12.AttachmentSupport = (doc.getObject("XZ_Plane"), [""])
sketch12.MapMode = "FlatFace"
sketch12.AttachmentOffset = App.Placement(V(0, 0, 20), App.Rotation())
sketch12.addGeometry([
    Part.Circle(V(-33.970133, 33, 0), V(0, 0, 1), 1.6),
    Part.Circle(V(-45.970133, 33, 0), V(0, 0, 1), 1.6),
], False)
sketch12.addConstraint([
    Sketcher.Constraint("Equal", 0, 1),
    Sketcher.Constraint("Horizontal", 0, 3, 1, 3),
    Sketcher.Constraint("Diameter", 0, 3.2),
    Sketcher.Constraint("DistanceY", -1, 1, 0, 3, 33.0),
    Sketcher.Constraint("DistanceX", 1, 3, 0, 3, 12.0),
    Sketcher.Constraint("DistanceX", 0, 3, -1, 1, 33.970133),
])
pocket7 = body.newObject("PartDesign::Pocket", "Pocket006")
pocket7.Profile = sketch12
pocket7.Type = "ThroughAll"

doc.recompute()
